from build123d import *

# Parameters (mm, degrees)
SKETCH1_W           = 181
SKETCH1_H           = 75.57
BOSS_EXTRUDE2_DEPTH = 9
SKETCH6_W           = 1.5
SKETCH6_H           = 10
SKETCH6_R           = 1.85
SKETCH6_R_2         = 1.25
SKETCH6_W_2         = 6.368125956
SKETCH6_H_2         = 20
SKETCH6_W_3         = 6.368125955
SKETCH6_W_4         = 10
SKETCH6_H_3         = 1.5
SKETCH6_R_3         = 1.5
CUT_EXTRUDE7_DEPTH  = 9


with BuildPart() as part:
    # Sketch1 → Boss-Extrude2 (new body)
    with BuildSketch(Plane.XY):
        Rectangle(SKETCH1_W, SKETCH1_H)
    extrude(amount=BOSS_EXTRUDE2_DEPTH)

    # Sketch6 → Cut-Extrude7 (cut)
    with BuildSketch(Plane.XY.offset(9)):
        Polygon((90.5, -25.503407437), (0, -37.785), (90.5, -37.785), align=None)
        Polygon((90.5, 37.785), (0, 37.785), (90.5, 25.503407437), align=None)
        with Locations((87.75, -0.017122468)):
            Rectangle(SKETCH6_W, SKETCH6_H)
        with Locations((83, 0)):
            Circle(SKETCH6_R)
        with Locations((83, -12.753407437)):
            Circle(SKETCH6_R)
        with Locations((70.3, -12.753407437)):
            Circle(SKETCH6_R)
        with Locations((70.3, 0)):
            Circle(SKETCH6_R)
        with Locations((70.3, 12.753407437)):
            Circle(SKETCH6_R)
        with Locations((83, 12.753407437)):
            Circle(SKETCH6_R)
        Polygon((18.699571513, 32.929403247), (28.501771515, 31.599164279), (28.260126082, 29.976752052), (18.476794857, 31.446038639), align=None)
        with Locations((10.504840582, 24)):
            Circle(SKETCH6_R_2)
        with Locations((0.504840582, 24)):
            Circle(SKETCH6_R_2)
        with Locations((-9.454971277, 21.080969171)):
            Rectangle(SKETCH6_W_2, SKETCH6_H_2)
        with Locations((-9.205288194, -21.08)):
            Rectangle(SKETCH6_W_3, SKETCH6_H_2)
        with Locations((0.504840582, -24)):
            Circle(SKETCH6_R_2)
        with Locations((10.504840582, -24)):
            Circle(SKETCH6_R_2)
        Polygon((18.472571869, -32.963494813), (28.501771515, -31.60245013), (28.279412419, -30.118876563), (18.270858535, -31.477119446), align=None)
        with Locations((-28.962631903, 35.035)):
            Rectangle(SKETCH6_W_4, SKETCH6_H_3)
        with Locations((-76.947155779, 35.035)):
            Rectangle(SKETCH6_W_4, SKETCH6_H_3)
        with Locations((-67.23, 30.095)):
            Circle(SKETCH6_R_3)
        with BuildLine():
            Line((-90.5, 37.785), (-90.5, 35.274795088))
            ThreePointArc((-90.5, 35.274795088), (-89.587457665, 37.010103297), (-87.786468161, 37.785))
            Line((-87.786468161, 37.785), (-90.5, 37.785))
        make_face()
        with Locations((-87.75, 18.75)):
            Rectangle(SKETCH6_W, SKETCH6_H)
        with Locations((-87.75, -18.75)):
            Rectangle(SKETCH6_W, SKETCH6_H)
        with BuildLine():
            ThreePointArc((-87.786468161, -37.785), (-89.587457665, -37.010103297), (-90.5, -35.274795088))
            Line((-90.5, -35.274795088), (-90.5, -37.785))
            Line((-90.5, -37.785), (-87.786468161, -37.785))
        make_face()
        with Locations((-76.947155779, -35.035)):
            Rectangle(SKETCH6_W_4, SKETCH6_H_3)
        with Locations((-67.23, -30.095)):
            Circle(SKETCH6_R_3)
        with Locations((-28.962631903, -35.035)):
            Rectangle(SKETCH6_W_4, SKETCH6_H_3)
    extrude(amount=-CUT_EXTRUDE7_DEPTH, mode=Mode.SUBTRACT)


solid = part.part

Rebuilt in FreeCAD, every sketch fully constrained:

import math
import FreeCAD as App
import Part
import Sketcher
Q = App.Units.Quantity


def add_polygon(sketch, points):
    """Adds a closed chain of lines whose ends are joined by coincident constraints."""
    first, n = sketch.GeometryCount, len(points)
    for a, b in zip(points, points[1:] + points[:1]):
        sketch.addGeometry(Part.LineSegment(App.Vector(*a, 0), App.Vector(*b, 0)), False)
    for i in range(n):
        sketch.addConstraint(Sketcher.Constraint("Coincident", first + i, 2, first + (i + 1) % n, 1))

doc = App.newDocument("Part")
body = doc.addObject("PartDesign::Body", "Body")

sketch1 = doc.addObject("Sketcher::SketchObject", "Sketch")
body.addObject(sketch1)
sketch1.AttachmentSupport = (doc.XY_Plane, [""])
sketch1.MapMode = "FlatFace"
add_polygon(sketch1, [(-90, 38), (-90, -38), (90, -38), (90, 38)])
sketch1.addConstraint([
    Sketcher.Constraint("Vertical", 0),
    Sketcher.Constraint("Horizontal", 1),
    Sketcher.Constraint("Vertical", 2),
    Sketcher.Constraint("Horizontal", 3),
    Sketcher.Constraint("Symmetric", 0, 2, 2, 2, -1, 1),
    Sketcher.Constraint("DistanceX", 1, 1, 1, 2, Q("181 mm")),
    Sketcher.Constraint("DistanceY", 0, 2, 0, 1, Q("75.57 mm")),
])
pad1 = doc.addObject("PartDesign::Pad", "Pad")
body.addObject(pad1)
pad1.Profile = sketch1
pad1.Length = 9

sketch2 = doc.addObject("Sketcher::SketchObject", "Sketch001")
body.addObject(sketch2)
sketch2.AttachmentSupport = (doc.XY_Plane, [""])
sketch2.MapMode = "FlatFace"
sketch2.AttachmentOffset = App.Placement(App.Vector(0, 0, 9), App.Rotation())
add_polygon(sketch2, [(90.5, -25.503407), (0, -37.785), (90.5, -37.785)])
add_polygon(sketch2, [(90.5, 37.785), (0, 37.785), (90.5, 25.503407)])
add_polygon(sketch2, [(87, 4.982878), (87, -5.017122), (88.5, -5.017122), (88.5, 4.982878)])
sketch2.addGeometry(Part.Circle(App.Vector(83, 0, 0), App.Vector(0, 0, 1), 1.85), False)
sketch2.addGeometry(Part.Circle(App.Vector(83, -12.753407, 0), App.Vector(0, 0, 1), 1.85), False)
sketch2.addGeometry(Part.Circle(App.Vector(70.3, -12.753407, 0), App.Vector(0, 0, 1), 1.85), False)
sketch2.addGeometry(Part.Circle(App.Vector(70.3, 0, 0), App.Vector(0, 0, 1), 1.85), False)
sketch2.addGeometry(Part.Circle(App.Vector(70.3, 12.753407, 0), App.Vector(0, 0, 1), 1.85), False)
sketch2.addGeometry(Part.Circle(App.Vector(83, 12.753407, 0), App.Vector(0, 0, 1), 1.85), False)
add_polygon(sketch2, [(28.501772, 31.599164), (18.699572, 32.929403), (18.476795, 31.446039), (28.260126, 29.976752)])
sketch2.addGeometry(Part.Circle(App.Vector(10.504841, 24, 0), App.Vector(0, 0, 1), 1.25), False)
sketch2.addGeometry(Part.Circle(App.Vector(0.504841, 24, 0), App.Vector(0, 0, 1), 1.25), False)
add_polygon(sketch2, [(-12.639034, 31.080969), (-12.639034, 11.080969), (-6.270908, 11.080969), (-6.270908, 31.080969)])
add_polygon(sketch2, [(-12.389351, -11.08), (-12.389351, -31.08), (-6.021225, -31.08), (-6.021225, -11.08)])
sketch2.addGeometry(Part.Circle(App.Vector(0.504841, -24, 0), App.Vector(0, 0, 1), 1.25), False)
sketch2.addGeometry(Part.Circle(App.Vector(10.504841, -24, 0), App.Vector(0, 0, 1), 1.25), False)
add_polygon(sketch2, [(18.472572, -32.963495), (28.501772, -31.60245), (28.279412, -30.118877), (18.270859, -31.477119)])
add_polygon(sketch2, [(-33.962632, 35.785), (-33.962632, 34.285), (-23.962632, 34.285), (-23.962632, 35.785)])
add_polygon(sketch2, [(-81.947156, 35.785), (-81.947156, 34.285), (-71.947156, 34.285), (-71.947156, 35.785)])
sketch2.addGeometry(Part.Circle(App.Vector(-67.23, 30.095, 0), App.Vector(0, 0, 1), 1.5), False)
sketch2.addGeometry(Part.LineSegment(App.Vector(-90.5, 37.785, 0), App.Vector(-90.5, 35.274795, 0)), False)
sketch2.addGeometry(Part.ArcOfCircle(Part.Circle(App.Vector(-87.592272, 34.853308, 0), App.Vector(0, 0, 1), 2.938117), math.radians(93.789747), math.radians(171.752182)), False)
sketch2.addGeometry(Part.LineSegment(App.Vector(-87.786468, 37.785, 0), App.Vector(-90.5, 37.785, 0)), False)
add_polygon(sketch2, [(-88.5, 23.75), (-88.5, 13.75), (-87, 13.75), (-87, 23.75)])
add_polygon(sketch2, [(-88.5, -13.75), (-88.5, -23.75), (-87, -23.75), (-87, -13.75)])
sketch2.addGeometry(Part.ArcOfCircle(Part.Circle(App.Vector(-87.592272, -34.853308, 0), App.Vector(0, 0, 1), 2.938117), math.radians(-171.752182), math.radians(-93.789747)), False)
sketch2.addGeometry(Part.LineSegment(App.Vector(-90.5, -35.274795, 0), App.Vector(-90.5, -37.785, 0)), False)
sketch2.addGeometry(Part.LineSegment(App.Vector(-90.5, -37.785, 0), App.Vector(-87.786468, -37.785, 0)), False)
add_polygon(sketch2, [(-81.947156, -34.285), (-81.947156, -35.785), (-71.947156, -35.785), (-71.947156, -34.285)])
sketch2.addGeometry(Part.Circle(App.Vector(-67.23, -30.095, 0), App.Vector(0, 0, 1), 1.5), False)
add_polygon(sketch2, [(-33.962632, -34.285), (-33.962632, -35.785), (-23.962632, -35.785), (-23.962632, -34.285)])
sketch2.addConstraint([
    Sketcher.Constraint("Coincident", 45, 2, 46, 2),
    Sketcher.Constraint("Coincident", 46, 1, 47, 1),
    Sketcher.Constraint("Coincident", 47, 2, 45, 1),
    Sketcher.Constraint("Coincident", 56, 1, 57, 1),
    Sketcher.Constraint("Coincident", 57, 2, 58, 1),
    Sketcher.Constraint("Coincident", 58, 2, 56, 2),
    Sketcher.Constraint("Horizontal", 1),
    Sketcher.Constraint("Vertical", 2),
    Sketcher.Constraint("Horizontal", 3),
    Sketcher.Constraint("Vertical", 5),
    Sketcher.Constraint("Vertical", 6),
    Sketcher.Constraint("Horizontal", 7),
    Sketcher.Constraint("Vertical", 8),
    Sketcher.Constraint("Horizontal", 9),
    Sketcher.Constraint("Vertical", 22),
    Sketcher.Constraint("Horizontal", 23),
    Sketcher.Constraint("Vertical", 24),
    Sketcher.Constraint("Horizontal", 25),
    Sketcher.Constraint("Vertical", 26),
    Sketcher.Constraint("Horizontal", 27),
    Sketcher.Constraint("Vertical", 28),
    Sketcher.Constraint("Horizontal", 29),
    Sketcher.Constraint("Vertical", 36),
    Sketcher.Constraint("Horizontal", 37),
    Sketcher.Constraint("Vertical", 38),
    Sketcher.Constraint("Horizontal", 39),
    Sketcher.Constraint("Vertical", 40),
    Sketcher.Constraint("Horizontal", 41),
    Sketcher.Constraint("Vertical", 42),
    Sketcher.Constraint("Horizontal", 43),
    Sketcher.Constraint("Vertical", 45),
    Sketcher.Constraint("Horizontal", 47),
    Sketcher.Constraint("Vertical", 48),
    Sketcher.Constraint("Horizontal", 49),
    Sketcher.Constraint("Vertical", 50),
    Sketcher.Constraint("Horizontal", 51),
    Sketcher.Constraint("Vertical", 52),
    Sketcher.Constraint("Horizontal", 53),
    Sketcher.Constraint("Vertical", 54),
    Sketcher.Constraint("Horizontal", 55),
    Sketcher.Constraint("Vertical", 57),
    Sketcher.Constraint("Horizontal", 58),
    Sketcher.Constraint("Vertical", 59),
    Sketcher.Constraint("Horizontal", 60),
    Sketcher.Constraint("Vertical", 61),
    Sketcher.Constraint("Horizontal", 62),
    Sketcher.Constraint("Vertical", 64),
    Sketcher.Constraint("Horizontal", 65),
    Sketcher.Constraint("Vertical", 66),
    Sketcher.Constraint("Horizontal", 67),
    Sketcher.Constraint("Equal", 10, 11),
    Sketcher.Constraint("Equal", 11, 12),
    Sketcher.Constraint("Equal", 12, 13),
    Sketcher.Constraint("Equal", 13, 14),
    Sketcher.Constraint("Equal", 14, 15),
    Sketcher.Constraint("Equal", 20, 21),
    Sketcher.Constraint("Equal", 21, 30),
    Sketcher.Constraint("Equal", 30, 31),
    Sketcher.Constraint("Equal", 46, 56),
    Sketcher.Constraint("Equal", 44, 63),
    Sketcher.Constraint("Symmetric", 0, 2, 3, 2, -1, 1),
    Sketcher.Constraint("Symmetric", 1, 2, 47, 2, -1, 1),
    Sketcher.Constraint("Symmetric", 5, 2, 57, 2, -1, 1),
    Sketcher.Constraint("Symmetric", 12, 3, 14, 3, -1),
    Sketcher.Constraint("Symmetric", 11, 3, 15, 3, -1),
    Sketcher.Constraint("Symmetric", 21, 3, 30, 3, -1),
    Sketcher.Constraint("Symmetric", 20, 3, 31, 3, -1),
    Sketcher.Constraint("Symmetric", 46, 3, 56, 3, -1),
    Sketcher.Constraint("Symmetric", 44, 3, 63, 3, -1),
    Sketcher.Constraint("Symmetric", 2, 2, 4, 2, -1),
    Sketcher.Constraint("Symmetric", 51, 2, 52, 2, -1),
    Sketcher.Constraint("Symmetric", 49, 2, 54, 2, -1),
    Sketcher.Constraint("Symmetric", 43, 2, 59, 2, -1),
    Sketcher.Constraint("Symmetric", 41, 2, 61, 2, -1),
    Sketcher.Constraint("Symmetric", 39, 2, 64, 2, -1),
    Sketcher.Constraint("Symmetric", 37, 2, 66, 2, -1),
    Sketcher.Constraint("PointOnObject", 10, 3, -1),
    Sketcher.Constraint("PointOnObject", 13, 3, -1),
    Sketcher.Constraint("PointOnObject", 0, 2, -2),
    Sketcher.Constraint("Parallel", 4, 16),
    Sketcher.Constraint("Perpendicular", 17, 18),
    Sketcher.Constraint("Parallel", 0, 32),
    Sketcher.Constraint("Parallel", 32, 34),
    Sketcher.Constraint("Perpendicular", 34, 35),
    Sketcher.Constraint("Horizontal", 11, 3, 12, 3),
    Sketcher.Constraint("Horizontal", 20, 3, 21, 3),
    Sketcher.Constraint("Horizontal", 37, 2, 40, 2),
    Sketcher.Constraint("Horizontal", 39, 2, 42, 2),
    Sketcher.Constraint("Vertical", 10, 3, 11, 3),
    Sketcher.Constraint("Vertical", 12, 3, 13, 3),
    Sketcher.Constraint("Vertical", 19, 2, 32, 2),
    Sketcher.Constraint("Equal", 25, 27),
    Sketcher.Constraint("Equal", 39, 41),
    Sketcher.Constraint("Equal", 9, 49),
    Sketcher.Constraint("Equal", 67, 6),
    Sketcher.Constraint("Equal", 24, 26),
    Sketcher.Constraint("Equal", 55, 36),
    Sketcher.Constraint("Equal", 8, 48),
    Sketcher.Constraint("Equal", 17, 35),
    Sketcher.Constraint("Diameter", 44, Q("3 mm")),
    Sketcher.Constraint("Diameter", 10, Q("3.7 mm")),
    Sketcher.Constraint("Diameter", 20, Q("2.5 mm")),
    Sketcher.Constraint("DistanceX", 37, 1, 37, 2, Q("10 mm")),
    Sketcher.Constraint("DistanceY", 22, 2, 22, 1, Q("20 mm")),
    Sketcher.Constraint("DistanceX", 1, 1, 1, 2, Q("90.5 mm")),
    Sketcher.Constraint("DistanceX", 7, 1, 7, 2, Q("1.5 mm")),
    Sketcher.Constraint("DistanceX", -1, 1, 10, 3, Q("83 mm")),
    Sketcher.Constraint("DistanceY", -1, 1, 20, 3, Q("24 mm")),
    Sketcher.Constraint("DistanceX", -1, 1, 6, 2, Q("87 mm")),
    Sketcher.Constraint("DistanceX", 49, 2, -1, 1, Q("87 mm")),
    Sketcher.Constraint("Distance", 17, Q("1.5 mm")),
    Sketcher.Constraint("DistanceX", -1, 1, 12, 3, Q("70.3 mm")),
    Sketcher.Constraint("DistanceX", 44, 3, -1, 1, Q("67.23 mm")),
    Sketcher.Constraint("DistanceY", 26, 2, -1, 1, Q("31.08 mm")),
    Sketcher.Constraint("DistanceY", -1, 1, 48, 2, Q("13.75 mm")),
    Sketcher.Constraint("DistanceY", -1, 1, 44, 3, Q("30.095 mm")),
    Sketcher.Constraint("DistanceY", 0, 2, -1, 1, Q("37.785 mm")),
    Sketcher.Constraint("DistanceY", -1, 1, 36, 2, Q("34.285 mm")),
    Sketcher.Constraint("Radius", 46, Q("2.938117 mm")),
    Sketcher.Constraint("DistanceX", 47, 2, 47, 1, Q("2.713532 mm")),
    Sketcher.Constraint("Distance", 16, Q("9.89205 mm")),
    Sketcher.Constraint("Distance", 19, Q("1.640309 mm")),
    Sketcher.Constraint("Distance", 32, Q("10.121131 mm")),
    Sketcher.Constraint("DistanceX", 23, 1, 23, 2, Q("6.368126 mm")),
    Sketcher.Constraint("DistanceY", 2, 1, 2, 2, Q("12.281593 mm")),
    Sketcher.Constraint("DistanceY", 45, 2, 45, 1, Q("2.510205 mm")),
    Sketcher.Constraint("DistanceX", -1, 1, 20, 3, Q("10.504841 mm")),
    Sketcher.Constraint("DistanceX", -1, 1, 21, 3, Q("0.504841 mm")),
    Sketcher.Constraint("DistanceX", -1, 1, 16, 2, Q("18.699572 mm")),
    Sketcher.Constraint("DistanceY", -1, 1, 17, 2, Q("31.446039 mm")),
    Sketcher.Constraint("DistanceY", -1, 1, 22, 2, Q("11.080969 mm")),
    Sketcher.Constraint("DistanceX", 23, 2, -1, 1, Q("6.270908 mm")),
    Sketcher.Constraint("DistanceX", 26, 2, -1, 1, Q("12.389351 mm")),
    Sketcher.Constraint("DistanceY", 32, 2, -1, 1, Q("31.60245 mm")),
    Sketcher.Constraint("DistanceX", 36, 2, -1, 1, Q("33.962632 mm")),
    Sketcher.Constraint("Distance", 18, Q("9.893047 mm")),
    Sketcher.Constraint("Distance", 33, Q("1.500145 mm")),
    Sketcher.Constraint("DistanceY", 11, 3, -1, 1, Q("12.753407 mm")),
    Sketcher.Constraint("DistanceY", 6, 2, -1, 1, Q("5.017122 mm")),
    Sketcher.Constraint("DistanceX", 40, 2, -1, 1, Q("81.947156 mm")),
])
pocket1 = doc.addObject("PartDesign::Pocket", "Pocket")
body.addObject(pocket1)
pocket1.Profile = sketch2
pocket1.Length = 9

doc.recompute()
